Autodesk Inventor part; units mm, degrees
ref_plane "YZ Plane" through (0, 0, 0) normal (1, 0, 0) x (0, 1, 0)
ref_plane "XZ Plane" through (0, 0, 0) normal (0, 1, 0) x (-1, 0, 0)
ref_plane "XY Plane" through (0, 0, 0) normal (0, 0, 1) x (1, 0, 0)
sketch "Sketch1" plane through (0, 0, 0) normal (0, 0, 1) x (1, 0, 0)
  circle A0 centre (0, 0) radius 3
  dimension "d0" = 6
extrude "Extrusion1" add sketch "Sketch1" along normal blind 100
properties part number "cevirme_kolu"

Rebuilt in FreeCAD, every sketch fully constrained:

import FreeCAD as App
import Part
import Sketcher
Q = App.Units.Quantity

doc = App.newDocument("Part")
body = doc.addObject("PartDesign::Body", "Body")

# Sketch on XY plane
sketch1 = body.newObject("Sketcher::SketchObject", "Sketch")
sketch1.AttachmentSupport = (doc.getObject("XY_Plane"), [""])
sketch1.MapMode = "FlatFace"
sketch1.addGeometry(Part.Circle(App.Vector(0, 0, 0), App.Vector(0, 0, 1), 3), False)
sketch1.addConstraint([
    Sketcher.Constraint("Coincident", 0, 3, -1, 1),
    Sketcher.Constraint("Diameter", 0, Q("6 mm")),
])
pad1 = body.newObject("PartDesign::Pad", "Pad")
pad1.Profile = sketch1
pad1.Length = 100

doc.recompute()
